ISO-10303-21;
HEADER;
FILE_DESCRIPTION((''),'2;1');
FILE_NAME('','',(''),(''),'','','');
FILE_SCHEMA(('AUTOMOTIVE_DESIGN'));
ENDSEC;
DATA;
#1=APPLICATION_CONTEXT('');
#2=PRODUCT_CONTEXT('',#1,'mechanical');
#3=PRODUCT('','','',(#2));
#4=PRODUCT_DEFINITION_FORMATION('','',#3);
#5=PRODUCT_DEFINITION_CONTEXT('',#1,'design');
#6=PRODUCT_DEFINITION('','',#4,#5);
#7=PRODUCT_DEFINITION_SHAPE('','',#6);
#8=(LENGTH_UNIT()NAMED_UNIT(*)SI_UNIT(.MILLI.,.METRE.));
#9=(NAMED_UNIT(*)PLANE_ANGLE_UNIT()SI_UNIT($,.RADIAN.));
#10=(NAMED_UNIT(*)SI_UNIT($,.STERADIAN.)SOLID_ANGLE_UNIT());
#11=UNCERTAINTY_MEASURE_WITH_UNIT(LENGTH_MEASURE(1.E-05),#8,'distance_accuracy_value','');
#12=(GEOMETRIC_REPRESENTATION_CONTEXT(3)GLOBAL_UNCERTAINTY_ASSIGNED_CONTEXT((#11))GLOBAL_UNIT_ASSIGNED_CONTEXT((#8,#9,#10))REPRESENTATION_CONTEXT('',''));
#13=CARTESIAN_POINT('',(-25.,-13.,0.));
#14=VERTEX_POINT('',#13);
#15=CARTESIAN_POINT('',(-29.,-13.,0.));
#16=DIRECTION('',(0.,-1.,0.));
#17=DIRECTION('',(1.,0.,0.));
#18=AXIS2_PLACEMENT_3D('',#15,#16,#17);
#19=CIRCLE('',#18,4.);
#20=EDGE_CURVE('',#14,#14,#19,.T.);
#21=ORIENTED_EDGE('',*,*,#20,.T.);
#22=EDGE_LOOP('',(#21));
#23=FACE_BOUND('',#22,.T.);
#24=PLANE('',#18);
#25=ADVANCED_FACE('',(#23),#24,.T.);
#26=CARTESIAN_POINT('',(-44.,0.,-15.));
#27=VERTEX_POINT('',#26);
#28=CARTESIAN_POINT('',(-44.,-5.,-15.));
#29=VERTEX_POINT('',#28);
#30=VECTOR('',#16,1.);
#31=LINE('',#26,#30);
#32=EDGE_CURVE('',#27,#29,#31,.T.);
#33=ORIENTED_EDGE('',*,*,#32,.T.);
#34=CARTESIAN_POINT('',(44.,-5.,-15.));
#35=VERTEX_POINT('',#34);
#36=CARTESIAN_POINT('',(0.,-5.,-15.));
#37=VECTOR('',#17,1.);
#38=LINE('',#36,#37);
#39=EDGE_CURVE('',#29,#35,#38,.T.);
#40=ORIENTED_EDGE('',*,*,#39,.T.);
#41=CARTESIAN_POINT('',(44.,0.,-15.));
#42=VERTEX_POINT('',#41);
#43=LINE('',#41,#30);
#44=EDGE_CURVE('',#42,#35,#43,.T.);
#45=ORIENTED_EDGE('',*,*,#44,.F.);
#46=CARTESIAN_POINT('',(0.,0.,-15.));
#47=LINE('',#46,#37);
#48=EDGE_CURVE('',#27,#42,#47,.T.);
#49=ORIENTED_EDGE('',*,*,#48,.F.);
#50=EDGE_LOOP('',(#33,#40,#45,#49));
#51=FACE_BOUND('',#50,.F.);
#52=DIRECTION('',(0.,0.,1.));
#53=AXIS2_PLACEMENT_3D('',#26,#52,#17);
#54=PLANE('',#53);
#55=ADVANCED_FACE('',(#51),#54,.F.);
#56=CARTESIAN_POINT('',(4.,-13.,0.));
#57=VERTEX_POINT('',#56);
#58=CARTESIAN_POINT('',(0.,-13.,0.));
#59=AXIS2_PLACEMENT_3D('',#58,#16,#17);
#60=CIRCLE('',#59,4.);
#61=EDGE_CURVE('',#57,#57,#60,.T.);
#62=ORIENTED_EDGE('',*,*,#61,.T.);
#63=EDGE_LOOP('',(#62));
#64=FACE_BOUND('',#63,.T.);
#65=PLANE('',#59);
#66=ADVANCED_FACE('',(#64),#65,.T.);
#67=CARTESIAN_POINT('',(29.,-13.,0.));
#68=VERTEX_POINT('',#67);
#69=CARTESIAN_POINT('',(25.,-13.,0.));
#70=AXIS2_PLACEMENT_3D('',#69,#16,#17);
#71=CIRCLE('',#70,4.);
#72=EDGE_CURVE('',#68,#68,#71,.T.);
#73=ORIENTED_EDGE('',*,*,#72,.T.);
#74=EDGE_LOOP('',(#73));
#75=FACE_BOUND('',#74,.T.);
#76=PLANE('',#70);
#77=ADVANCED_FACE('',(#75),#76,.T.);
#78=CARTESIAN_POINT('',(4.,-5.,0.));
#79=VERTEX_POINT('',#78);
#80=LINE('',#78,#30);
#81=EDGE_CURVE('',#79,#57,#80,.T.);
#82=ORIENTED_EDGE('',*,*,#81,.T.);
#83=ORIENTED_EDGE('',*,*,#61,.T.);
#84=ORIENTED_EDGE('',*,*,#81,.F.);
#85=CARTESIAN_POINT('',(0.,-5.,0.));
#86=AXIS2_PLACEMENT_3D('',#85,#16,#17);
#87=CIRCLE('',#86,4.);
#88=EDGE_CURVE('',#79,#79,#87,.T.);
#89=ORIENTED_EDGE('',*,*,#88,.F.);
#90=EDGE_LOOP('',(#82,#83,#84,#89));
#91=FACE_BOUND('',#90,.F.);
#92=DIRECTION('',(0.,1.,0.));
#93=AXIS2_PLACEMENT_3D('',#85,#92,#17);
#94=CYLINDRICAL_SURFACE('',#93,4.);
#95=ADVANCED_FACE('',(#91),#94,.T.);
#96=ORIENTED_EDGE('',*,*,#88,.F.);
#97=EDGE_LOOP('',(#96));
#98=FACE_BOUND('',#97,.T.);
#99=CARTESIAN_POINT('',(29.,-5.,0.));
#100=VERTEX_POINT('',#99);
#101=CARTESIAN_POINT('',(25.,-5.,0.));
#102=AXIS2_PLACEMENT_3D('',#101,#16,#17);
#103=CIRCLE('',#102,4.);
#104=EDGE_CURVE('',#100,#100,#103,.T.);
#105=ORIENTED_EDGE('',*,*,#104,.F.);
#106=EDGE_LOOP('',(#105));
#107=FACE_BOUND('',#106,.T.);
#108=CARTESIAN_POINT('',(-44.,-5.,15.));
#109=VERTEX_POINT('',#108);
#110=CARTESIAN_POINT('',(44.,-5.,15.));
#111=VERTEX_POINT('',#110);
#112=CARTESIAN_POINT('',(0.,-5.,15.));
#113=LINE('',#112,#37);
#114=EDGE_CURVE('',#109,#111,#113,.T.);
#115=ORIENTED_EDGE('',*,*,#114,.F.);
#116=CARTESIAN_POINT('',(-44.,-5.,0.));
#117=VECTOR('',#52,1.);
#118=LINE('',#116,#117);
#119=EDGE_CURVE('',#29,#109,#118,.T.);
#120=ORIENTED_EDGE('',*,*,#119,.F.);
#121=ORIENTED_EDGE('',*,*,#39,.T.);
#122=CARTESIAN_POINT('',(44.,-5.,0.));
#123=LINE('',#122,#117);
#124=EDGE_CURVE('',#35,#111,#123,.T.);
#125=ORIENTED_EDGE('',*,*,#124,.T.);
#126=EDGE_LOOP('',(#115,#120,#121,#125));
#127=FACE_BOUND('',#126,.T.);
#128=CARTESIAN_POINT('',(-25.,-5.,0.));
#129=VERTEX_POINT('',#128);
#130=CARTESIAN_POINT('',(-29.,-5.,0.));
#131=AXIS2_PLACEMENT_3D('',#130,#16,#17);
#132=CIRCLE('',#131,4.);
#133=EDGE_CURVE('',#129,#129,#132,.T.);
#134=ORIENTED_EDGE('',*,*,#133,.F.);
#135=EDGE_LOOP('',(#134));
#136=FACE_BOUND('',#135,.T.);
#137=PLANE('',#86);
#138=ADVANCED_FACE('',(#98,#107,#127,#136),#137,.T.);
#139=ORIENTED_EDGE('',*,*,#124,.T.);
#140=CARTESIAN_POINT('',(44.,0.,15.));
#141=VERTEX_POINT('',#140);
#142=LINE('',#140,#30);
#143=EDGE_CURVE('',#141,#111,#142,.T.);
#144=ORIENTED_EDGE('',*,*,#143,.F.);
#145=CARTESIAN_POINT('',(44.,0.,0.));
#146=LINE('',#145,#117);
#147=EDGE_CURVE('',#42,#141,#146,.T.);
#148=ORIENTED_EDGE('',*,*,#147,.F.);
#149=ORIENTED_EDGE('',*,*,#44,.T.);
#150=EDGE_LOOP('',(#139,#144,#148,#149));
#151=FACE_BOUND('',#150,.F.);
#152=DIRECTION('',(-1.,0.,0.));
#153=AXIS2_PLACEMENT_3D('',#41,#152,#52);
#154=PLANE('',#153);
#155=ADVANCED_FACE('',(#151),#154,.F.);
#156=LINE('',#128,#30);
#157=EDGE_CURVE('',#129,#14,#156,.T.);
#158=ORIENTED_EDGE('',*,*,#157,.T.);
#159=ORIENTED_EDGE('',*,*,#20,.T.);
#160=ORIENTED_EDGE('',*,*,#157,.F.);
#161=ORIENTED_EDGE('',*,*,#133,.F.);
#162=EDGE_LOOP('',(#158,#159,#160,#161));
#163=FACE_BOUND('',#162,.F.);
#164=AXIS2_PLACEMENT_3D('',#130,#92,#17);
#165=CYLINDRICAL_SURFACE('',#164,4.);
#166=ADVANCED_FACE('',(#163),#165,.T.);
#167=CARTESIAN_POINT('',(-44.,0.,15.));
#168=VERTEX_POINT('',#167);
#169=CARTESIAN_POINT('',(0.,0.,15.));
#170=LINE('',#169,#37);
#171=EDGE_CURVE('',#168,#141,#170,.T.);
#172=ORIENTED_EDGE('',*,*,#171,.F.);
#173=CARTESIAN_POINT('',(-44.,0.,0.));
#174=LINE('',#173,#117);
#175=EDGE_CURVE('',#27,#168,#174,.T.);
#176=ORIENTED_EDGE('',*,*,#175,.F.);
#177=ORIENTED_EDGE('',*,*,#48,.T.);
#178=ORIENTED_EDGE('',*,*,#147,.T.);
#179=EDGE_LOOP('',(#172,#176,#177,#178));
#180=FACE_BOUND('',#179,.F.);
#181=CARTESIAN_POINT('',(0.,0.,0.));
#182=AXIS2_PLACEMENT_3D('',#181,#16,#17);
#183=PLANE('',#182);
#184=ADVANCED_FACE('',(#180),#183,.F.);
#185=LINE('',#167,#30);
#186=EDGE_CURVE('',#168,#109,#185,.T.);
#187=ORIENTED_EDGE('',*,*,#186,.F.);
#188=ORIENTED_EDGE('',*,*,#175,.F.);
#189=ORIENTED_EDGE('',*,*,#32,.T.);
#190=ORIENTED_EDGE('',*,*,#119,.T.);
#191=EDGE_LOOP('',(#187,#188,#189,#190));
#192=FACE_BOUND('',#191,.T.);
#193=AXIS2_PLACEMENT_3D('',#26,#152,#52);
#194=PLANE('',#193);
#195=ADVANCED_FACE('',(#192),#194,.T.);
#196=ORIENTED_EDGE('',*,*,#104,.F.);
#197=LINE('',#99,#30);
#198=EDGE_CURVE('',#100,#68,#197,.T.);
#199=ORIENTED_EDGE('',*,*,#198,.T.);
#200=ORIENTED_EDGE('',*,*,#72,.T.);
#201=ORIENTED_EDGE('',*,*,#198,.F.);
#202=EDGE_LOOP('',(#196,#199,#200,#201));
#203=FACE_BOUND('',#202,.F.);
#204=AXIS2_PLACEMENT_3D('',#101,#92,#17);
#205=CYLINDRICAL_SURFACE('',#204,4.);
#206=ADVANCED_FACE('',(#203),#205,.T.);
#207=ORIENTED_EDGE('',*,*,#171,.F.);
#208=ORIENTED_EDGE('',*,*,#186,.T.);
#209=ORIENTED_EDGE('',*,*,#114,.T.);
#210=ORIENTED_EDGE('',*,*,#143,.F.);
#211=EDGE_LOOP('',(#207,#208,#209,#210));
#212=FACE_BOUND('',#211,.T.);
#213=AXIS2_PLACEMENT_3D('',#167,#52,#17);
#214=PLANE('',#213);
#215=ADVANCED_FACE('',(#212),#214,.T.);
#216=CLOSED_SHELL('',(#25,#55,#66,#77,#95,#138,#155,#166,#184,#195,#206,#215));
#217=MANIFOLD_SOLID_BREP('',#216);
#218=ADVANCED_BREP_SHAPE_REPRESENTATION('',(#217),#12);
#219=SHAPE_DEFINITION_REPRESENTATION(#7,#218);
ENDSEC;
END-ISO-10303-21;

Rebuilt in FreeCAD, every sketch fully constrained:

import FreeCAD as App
import Part
import Sketcher
from FreeCAD import Vector

doc = App.newDocument("Part")
params = doc.addObject("Spreadsheet::Sheet", "Params")
for row, (alias, value) in enumerate([
    ("sketch1_width", "88 mm"),
    ("sketch1_height", "30 mm"),
    ("pad1_length", "5 mm"),
    ("sketch2_diameter", "8 mm"),
    ("pad2_length", "8 mm"),
    ("sketch3_diameter", "8 mm"),
    ("pad3_length", "8 mm"),
], start=1):
    params.set(f"A{row}", alias)
    params.set(f"B{row}", "=" + value)
    params.setAlias(f"B{row}", alias)

body = doc.addObject("PartDesign::Body", "Body")

# Sketch on XZ plane
sketch1 = doc.addObject("Sketcher::SketchObject", "Sketch")
body.addObject(sketch1)
sketch1.AttachmentSupport = (doc.XZ_Plane, [""])
sketch1.MapMode = "FlatFace"
sketch1.addGeometry([
    Part.LineSegment(Vector(-44, 15, 0), Vector(-44, -15, 0)),
    Part.LineSegment(Vector(-44, -15, 0), Vector(44, -15, 0)),
    Part.LineSegment(Vector(44, -15, 0), Vector(44, 15, 0)),
    Part.LineSegment(Vector(44, 15, 0), Vector(-44, 15, 0)),
], False)
sketch1.addConstraint([
    Sketcher.Constraint("Coincident", 0, 2, 1, 1),
    Sketcher.Constraint("Coincident", 1, 2, 2, 1),
    Sketcher.Constraint("Coincident", 2, 2, 3, 1),
    Sketcher.Constraint("Coincident", 3, 2, 0, 1),
    Sketcher.Constraint("Vertical", 0),
    Sketcher.Constraint("Horizontal", 1),
    Sketcher.Constraint("Vertical", 2),
    Sketcher.Constraint("Horizontal", 3),
    Sketcher.Constraint("Symmetric", 0, 2, 2, 2, -1, 1),
    Sketcher.Constraint("DistanceX", 1, 1, 1, 2, 88.0),
    Sketcher.Constraint("DistanceY", 0, 2, 0, 1, 30.0),
])
sketch1.setExpression("Constraints[9]", "Params.sketch1_width")
sketch1.setExpression("Constraints[10]", "Params.sketch1_height")
pad1 = doc.addObject("PartDesign::Pad", "Pad")
body.addObject(pad1)
pad1.Profile = sketch1
pad1.setExpression("Length", "Params.pad1_length")

# Sketch on XZ plane
sketch2 = doc.addObject("Sketcher::SketchObject", "Sketch001")
body.addObject(sketch2)
sketch2.AttachmentSupport = (doc.XZ_Plane, [""])
sketch2.MapMode = "FlatFace"
sketch2.AttachmentOffset = App.Placement(Vector(0, 0, 5), App.Rotation())
sketch2.addGeometry(Part.Circle(Vector(-29, 0, 0), Vector(0, 0, 1), 4), False)
sketch2.addConstraint([
    Sketcher.Constraint("PointOnObject", 0, 3, -1),
    Sketcher.Constraint("Diameter", 0, 8.0),
    Sketcher.Constraint("DistanceX", 0, 3, -1, 1, 29.0),
])
sketch2.setExpression("Constraints[1]", "Params.sketch2_diameter")
pad2 = doc.addObject("PartDesign::Pad", "Pad001")
body.addObject(pad2)
pad2.Profile = sketch2
pad2.setExpression("Length", "Params.pad2_length")

# Sketch on XZ plane
sketch3 = doc.addObject("Sketcher::SketchObject", "Sketch002")
body.addObject(sketch3)
sketch3.AttachmentSupport = (doc.XZ_Plane, [""])
sketch3.MapMode = "FlatFace"
sketch3.AttachmentOffset = App.Placement(Vector(0, 0, 5), App.Rotation())
sketch3.addGeometry([
    Part.Circle(Vector(0, 0, 0), Vector(0, 0, 1), 4),
    Part.Circle(Vector(25, 0, 0), Vector(0, 0, 1), 4),
], False)
sketch3.addConstraint([
    Sketcher.Constraint("Coincident", 0, 3, -1, 1),
    Sketcher.Constraint("Equal", 0, 1),
    Sketcher.Constraint("PointOnObject", 1, 3, -1),
    Sketcher.Constraint("Diameter", 0, 8.0),
    Sketcher.Constraint("DistanceX", -1, 1, 1, 3, 25.0),
])
sketch3.setExpression("Constraints[3]", "Params.sketch3_diameter")
pad3 = doc.addObject("PartDesign::Pad", "Pad002")
body.addObject(pad3)
pad3.Profile = sketch3
pad3.setExpression("Length", "Params.pad3_length")

doc.recompute()
